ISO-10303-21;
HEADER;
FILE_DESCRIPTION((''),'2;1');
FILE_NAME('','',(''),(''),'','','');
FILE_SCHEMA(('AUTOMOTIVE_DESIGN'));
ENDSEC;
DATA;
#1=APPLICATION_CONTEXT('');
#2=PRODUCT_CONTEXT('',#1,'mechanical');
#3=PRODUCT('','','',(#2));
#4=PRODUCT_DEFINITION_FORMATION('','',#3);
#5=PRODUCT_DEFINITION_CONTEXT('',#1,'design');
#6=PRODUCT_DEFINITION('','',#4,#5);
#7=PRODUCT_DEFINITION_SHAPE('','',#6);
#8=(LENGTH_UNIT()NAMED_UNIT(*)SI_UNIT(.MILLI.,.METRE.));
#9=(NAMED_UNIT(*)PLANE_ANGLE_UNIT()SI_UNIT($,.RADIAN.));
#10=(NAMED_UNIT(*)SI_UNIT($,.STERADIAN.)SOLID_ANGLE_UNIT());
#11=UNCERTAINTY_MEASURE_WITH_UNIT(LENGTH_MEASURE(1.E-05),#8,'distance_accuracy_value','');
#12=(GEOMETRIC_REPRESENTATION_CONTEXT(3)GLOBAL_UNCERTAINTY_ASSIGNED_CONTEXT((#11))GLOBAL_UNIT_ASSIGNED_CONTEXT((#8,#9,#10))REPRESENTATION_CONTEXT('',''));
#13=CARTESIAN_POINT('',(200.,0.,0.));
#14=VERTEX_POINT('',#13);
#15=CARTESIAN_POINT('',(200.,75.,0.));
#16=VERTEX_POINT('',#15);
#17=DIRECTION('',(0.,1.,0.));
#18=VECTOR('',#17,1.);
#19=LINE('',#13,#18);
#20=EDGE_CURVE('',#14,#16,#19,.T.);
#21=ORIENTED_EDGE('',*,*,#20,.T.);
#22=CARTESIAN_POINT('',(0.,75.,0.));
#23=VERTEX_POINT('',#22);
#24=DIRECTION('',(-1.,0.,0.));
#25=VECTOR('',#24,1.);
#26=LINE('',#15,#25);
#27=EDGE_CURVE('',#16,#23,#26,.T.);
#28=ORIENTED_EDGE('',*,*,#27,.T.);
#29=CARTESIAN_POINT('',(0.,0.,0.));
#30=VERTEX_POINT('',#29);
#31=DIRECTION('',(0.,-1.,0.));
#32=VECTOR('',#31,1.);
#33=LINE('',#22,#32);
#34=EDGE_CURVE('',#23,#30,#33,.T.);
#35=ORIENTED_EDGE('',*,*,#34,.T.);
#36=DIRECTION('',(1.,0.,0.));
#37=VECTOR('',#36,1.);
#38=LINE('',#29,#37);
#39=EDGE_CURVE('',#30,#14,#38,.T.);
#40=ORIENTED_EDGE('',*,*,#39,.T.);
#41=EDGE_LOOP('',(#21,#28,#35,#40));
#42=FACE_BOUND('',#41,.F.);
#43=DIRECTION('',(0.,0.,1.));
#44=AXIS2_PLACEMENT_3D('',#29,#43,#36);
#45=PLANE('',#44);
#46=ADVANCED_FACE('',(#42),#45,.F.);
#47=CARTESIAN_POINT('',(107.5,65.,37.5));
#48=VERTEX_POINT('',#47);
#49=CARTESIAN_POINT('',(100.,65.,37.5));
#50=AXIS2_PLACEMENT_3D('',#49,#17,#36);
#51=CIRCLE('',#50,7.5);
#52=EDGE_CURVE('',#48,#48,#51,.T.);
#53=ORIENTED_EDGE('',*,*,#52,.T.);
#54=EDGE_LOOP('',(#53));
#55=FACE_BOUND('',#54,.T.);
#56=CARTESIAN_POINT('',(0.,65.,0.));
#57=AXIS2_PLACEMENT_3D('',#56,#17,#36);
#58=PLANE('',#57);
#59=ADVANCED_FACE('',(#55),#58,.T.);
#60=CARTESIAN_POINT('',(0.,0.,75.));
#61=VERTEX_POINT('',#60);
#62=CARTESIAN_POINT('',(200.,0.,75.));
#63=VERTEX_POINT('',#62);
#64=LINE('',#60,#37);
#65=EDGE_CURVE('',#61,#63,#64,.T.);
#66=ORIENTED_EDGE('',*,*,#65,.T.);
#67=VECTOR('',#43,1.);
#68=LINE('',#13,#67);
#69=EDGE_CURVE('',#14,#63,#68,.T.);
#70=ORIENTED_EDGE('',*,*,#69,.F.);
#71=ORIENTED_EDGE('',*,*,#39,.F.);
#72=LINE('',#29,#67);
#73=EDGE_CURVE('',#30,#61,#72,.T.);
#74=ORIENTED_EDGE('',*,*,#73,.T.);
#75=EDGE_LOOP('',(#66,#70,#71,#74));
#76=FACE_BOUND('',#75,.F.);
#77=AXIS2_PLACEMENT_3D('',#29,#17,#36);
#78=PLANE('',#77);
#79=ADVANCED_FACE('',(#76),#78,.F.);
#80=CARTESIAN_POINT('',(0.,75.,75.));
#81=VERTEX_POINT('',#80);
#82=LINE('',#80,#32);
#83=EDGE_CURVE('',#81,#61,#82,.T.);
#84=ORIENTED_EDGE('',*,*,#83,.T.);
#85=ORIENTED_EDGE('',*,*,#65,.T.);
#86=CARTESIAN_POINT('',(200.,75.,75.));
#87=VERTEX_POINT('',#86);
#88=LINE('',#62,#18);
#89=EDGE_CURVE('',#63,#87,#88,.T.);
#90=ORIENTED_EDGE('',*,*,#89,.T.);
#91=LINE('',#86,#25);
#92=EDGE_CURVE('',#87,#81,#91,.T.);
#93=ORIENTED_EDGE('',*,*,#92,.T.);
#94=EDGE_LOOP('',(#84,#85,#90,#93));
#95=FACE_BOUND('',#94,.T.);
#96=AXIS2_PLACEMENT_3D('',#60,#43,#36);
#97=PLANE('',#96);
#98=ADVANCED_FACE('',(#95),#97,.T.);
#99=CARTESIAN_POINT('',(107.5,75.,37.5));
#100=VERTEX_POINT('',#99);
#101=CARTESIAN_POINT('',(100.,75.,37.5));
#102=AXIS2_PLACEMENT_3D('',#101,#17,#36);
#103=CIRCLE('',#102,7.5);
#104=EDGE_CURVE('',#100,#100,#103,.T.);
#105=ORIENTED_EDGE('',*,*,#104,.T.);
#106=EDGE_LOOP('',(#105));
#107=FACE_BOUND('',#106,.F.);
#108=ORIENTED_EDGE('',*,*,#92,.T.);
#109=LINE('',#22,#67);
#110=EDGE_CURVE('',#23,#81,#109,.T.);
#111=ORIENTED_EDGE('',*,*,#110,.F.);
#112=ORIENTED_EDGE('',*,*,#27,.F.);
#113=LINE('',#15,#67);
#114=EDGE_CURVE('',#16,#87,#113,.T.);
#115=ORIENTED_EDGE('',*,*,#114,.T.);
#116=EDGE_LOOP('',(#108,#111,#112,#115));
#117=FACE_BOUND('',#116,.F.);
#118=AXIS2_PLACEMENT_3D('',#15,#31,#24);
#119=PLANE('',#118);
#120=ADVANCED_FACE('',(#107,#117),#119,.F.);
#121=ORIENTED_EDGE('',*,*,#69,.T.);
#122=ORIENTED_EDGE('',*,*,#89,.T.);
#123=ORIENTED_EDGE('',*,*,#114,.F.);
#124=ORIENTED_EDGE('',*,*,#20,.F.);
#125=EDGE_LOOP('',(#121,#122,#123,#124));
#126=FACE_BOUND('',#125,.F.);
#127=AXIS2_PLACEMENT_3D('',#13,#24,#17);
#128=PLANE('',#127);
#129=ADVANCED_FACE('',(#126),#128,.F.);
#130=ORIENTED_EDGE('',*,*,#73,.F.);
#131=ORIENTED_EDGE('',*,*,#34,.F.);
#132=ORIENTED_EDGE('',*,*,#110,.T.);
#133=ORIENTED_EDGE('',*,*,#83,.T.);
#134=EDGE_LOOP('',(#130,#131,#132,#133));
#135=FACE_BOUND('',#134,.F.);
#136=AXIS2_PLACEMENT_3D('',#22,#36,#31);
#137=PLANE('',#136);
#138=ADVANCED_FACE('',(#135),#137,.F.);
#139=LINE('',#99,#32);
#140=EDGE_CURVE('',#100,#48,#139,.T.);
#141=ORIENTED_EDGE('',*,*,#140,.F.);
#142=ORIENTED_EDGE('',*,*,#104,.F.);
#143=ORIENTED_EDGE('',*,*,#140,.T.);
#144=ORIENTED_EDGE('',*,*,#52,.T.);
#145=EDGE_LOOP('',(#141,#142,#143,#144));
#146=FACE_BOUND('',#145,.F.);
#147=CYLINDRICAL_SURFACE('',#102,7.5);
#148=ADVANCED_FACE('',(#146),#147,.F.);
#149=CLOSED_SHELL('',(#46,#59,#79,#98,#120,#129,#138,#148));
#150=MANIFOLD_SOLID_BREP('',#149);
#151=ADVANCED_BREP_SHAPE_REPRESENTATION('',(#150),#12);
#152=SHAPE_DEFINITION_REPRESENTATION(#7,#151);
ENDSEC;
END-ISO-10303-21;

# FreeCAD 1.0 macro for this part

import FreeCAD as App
import Part
import Sketcher

V = App.Vector


def add_polygon(sketch, points):
    """Adds a closed chain of lines whose ends are joined by coincident constraints."""
    first, n = sketch.GeometryCount, len(points)
    for a, b in zip(points, points[1:] + points[:1]):
        sketch.addGeometry(Part.LineSegment(App.Vector(*a, 0), App.Vector(*b, 0)), False)
    for i in range(n):
        sketch.addConstraint(Sketcher.Constraint("Coincident", first + i, 2, first + (i + 1) % n, 1))

doc = App.newDocument("Part")
params = doc.addObject("Spreadsheet::Sheet", "Params")
for row, (alias, value) in enumerate([
    ("sketch1_width", "200 mm"),
    ("sketch1_height", "75 mm"),
    ("pad1_length", "75 mm"),
    ("sketch2_diameter", "15 mm"),
    ("pocket1_length", "10 mm"),
], start=1):
    params.set(f"A{row}", alias)
    params.set(f"B{row}", "=" + value)
    params.setAlias(f"B{row}", alias)

body = doc.addObject("PartDesign::Body", "Body")

sketch1 = doc.addObject("Sketcher::SketchObject", "Sketch")
body.addObject(sketch1)
sketch1.AttachmentSupport = (doc.XY_Plane, [""])
sketch1.MapMode = "FlatFace"
add_polygon(sketch1, [(0, 75), (0, 0), (200, 0), (200, 75)])
sketch1.addConstraint(Sketcher.Constraint("Vertical", 0))
sketch1.addConstraint(Sketcher.Constraint("Horizontal", 1))
sketch1.addConstraint(Sketcher.Constraint("Vertical", 2))
sketch1.addConstraint(Sketcher.Constraint("Horizontal", 3))
sketch1.addConstraint(Sketcher.Constraint("Coincident", 0, 2, -1, 1))
sketch1.addConstraint(Sketcher.Constraint("DistanceX", 1, 1, 1, 2, 200.0))
sketch1.addConstraint(Sketcher.Constraint("DistanceY", 0, 2, 0, 1, 75.0))
sketch1.setExpression("Constraints[9]", "Params.sketch1_width")
sketch1.setExpression("Constraints[10]", "Params.sketch1_height")
pad1 = doc.addObject("PartDesign::Pad", "Pad")
body.addObject(pad1)
pad1.Profile = sketch1
pad1.setExpression("Length", "Params.pad1_length")

sketch2 = doc.addObject("Sketcher::SketchObject", "Sketch001")
body.addObject(sketch2)
sketch2.AttachmentSupport = (doc.XZ_Plane, [""])
sketch2.MapMode = "FlatFace"
sketch2.AttachmentOffset = App.Placement(V(0, 0, -75), App.Rotation())
sketch2.addGeometry(Part.Circle(V(100, 38, 0), V(0, 0, 1), 8), False)
sketch2.addConstraint(Sketcher.Constraint("Diameter", 0, 15.0))
sketch2.addConstraint(Sketcher.Constraint("DistanceX", -1, 1, 0, 3, 100.0))
sketch2.addConstraint(Sketcher.Constraint("DistanceY", -1, 1, 0, 3, 37.5))
sketch2.setExpression("Constraints[0]", "Params.sketch2_diameter")
pocket1 = doc.addObject("PartDesign::Pocket", "Pocket")
body.addObject(pocket1)
pocket1.Profile = sketch2
pocket1.setExpression("Length", "Params.pocket1_length")
pocket1.Reversed = True

doc.recompute()
